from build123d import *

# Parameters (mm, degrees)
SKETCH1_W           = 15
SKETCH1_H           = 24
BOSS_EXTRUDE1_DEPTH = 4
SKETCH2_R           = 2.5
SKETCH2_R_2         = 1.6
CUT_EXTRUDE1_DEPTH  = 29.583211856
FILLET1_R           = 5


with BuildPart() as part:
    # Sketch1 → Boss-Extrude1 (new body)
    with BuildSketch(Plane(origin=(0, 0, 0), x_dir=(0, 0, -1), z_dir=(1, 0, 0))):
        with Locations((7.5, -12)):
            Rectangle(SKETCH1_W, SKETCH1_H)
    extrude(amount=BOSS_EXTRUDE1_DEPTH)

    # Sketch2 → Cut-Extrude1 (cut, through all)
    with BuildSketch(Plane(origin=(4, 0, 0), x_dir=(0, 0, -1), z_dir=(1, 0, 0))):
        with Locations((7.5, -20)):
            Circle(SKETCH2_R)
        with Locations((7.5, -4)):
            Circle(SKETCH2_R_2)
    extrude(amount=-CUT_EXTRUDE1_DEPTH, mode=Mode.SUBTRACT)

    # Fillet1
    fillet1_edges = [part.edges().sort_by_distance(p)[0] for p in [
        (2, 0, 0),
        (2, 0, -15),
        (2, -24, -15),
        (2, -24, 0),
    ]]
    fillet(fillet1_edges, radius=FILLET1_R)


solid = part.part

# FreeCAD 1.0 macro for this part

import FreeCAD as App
import Part
import Sketcher


def edges_at(feature, points):
    """Names of the edges that pass closest to the given points."""
    edges = feature.Shape.Edges
    near = lambda p: min(range(len(edges)), key=lambda i: edges[i].distToShape(Part.Vertex(*p))[0])
    return sorted({f"Edge{near(p) + 1}" for p in points})


def add_polygon(sketch, points):
    """Adds a closed chain of lines whose ends are joined by coincident constraints."""
    first, n = sketch.GeometryCount, len(points)
    for a, b in zip(points, points[1:] + points[:1]):
        sketch.addGeometry(Part.LineSegment(App.Vector(*a, 0), App.Vector(*b, 0)), False)
    for i in range(n):
        sketch.addConstraint(Sketcher.Constraint("Coincident", first + i, 2, first + (i + 1) % n, 1))

doc = App.newDocument("Part")
body = doc.addObject("PartDesign::Body", "Body")

sketch1 = body.newObject("Sketcher::SketchObject", "Sketch")
sketch1.AttachmentSupport = (doc.getObject("YZ_Plane"), [""])
sketch1.MapMode = "FlatFace"
add_polygon(sketch1, [(0, 0), (-24, 0), (-24, -15), (0, -15)])
sketch1.addConstraint(Sketcher.Constraint("Horizontal", 0))
sketch1.addConstraint(Sketcher.Constraint("Vertical", 1))
sketch1.addConstraint(Sketcher.Constraint("Horizontal", 2))
sketch1.addConstraint(Sketcher.Constraint("Vertical", 3))
sketch1.addConstraint(Sketcher.Constraint("Coincident", 3, 2, -1, 1))
sketch1.addConstraint(Sketcher.Constraint("DistanceX", 0, 2, 0, 1, 24.0))
sketch1.addConstraint(Sketcher.Constraint("DistanceY", 1, 2, 1, 1, 15.0))
pad1 = body.newObject("PartDesign::Pad", "Pad")
pad1.Profile = sketch1
pad1.Length = 4

sketch2 = body.newObject("Sketcher::SketchObject", "Sketch001")
sketch2.AttachmentSupport = (doc.getObject("YZ_Plane"), [""])
sketch2.MapMode = "FlatFace"
sketch2.AttachmentOffset = App.Placement(App.Vector(0, 0, 4), App.Rotation())
sketch2.addGeometry(Part.Circle(App.Vector(-20, -7.5, 0), App.Vector(0, 0, 1), 2.5), False)
sketch2.addGeometry(Part.Circle(App.Vector(-4, -7.5, 0), App.Vector(0, 0, 1), 1.6), False)
sketch2.addConstraint(Sketcher.Constraint("Horizontal", 0, 3, 1, 3))
sketch2.addConstraint(Sketcher.Constraint("Diameter", 0, 5.0))
sketch2.addConstraint(Sketcher.Constraint("Diameter", 1, 3.2))
sketch2.addConstraint(Sketcher.Constraint("DistanceX", 0, 3, -1, 1, 20.0))
sketch2.addConstraint(Sketcher.Constraint("DistanceX", 1, 3, -1, 1, 4.0))
sketch2.addConstraint(Sketcher.Constraint("DistanceY", 0, 3, -1, 1, 7.5))
pocket1 = body.newObject("PartDesign::Pocket", "Pocket")
pocket1.Profile = sketch2
pocket1.Type = "ThroughAll"
doc.recompute()

fillet = body.newObject("PartDesign::Fillet", "Fillet")
fillet.Base = (pocket1, edges_at(pocket1, [
    (2, 0, 0),
    (2, 0, -15),
    (2, -24, -15),
    (2, -24, 0),
]))
fillet.Radius = 5

doc.recompute()
